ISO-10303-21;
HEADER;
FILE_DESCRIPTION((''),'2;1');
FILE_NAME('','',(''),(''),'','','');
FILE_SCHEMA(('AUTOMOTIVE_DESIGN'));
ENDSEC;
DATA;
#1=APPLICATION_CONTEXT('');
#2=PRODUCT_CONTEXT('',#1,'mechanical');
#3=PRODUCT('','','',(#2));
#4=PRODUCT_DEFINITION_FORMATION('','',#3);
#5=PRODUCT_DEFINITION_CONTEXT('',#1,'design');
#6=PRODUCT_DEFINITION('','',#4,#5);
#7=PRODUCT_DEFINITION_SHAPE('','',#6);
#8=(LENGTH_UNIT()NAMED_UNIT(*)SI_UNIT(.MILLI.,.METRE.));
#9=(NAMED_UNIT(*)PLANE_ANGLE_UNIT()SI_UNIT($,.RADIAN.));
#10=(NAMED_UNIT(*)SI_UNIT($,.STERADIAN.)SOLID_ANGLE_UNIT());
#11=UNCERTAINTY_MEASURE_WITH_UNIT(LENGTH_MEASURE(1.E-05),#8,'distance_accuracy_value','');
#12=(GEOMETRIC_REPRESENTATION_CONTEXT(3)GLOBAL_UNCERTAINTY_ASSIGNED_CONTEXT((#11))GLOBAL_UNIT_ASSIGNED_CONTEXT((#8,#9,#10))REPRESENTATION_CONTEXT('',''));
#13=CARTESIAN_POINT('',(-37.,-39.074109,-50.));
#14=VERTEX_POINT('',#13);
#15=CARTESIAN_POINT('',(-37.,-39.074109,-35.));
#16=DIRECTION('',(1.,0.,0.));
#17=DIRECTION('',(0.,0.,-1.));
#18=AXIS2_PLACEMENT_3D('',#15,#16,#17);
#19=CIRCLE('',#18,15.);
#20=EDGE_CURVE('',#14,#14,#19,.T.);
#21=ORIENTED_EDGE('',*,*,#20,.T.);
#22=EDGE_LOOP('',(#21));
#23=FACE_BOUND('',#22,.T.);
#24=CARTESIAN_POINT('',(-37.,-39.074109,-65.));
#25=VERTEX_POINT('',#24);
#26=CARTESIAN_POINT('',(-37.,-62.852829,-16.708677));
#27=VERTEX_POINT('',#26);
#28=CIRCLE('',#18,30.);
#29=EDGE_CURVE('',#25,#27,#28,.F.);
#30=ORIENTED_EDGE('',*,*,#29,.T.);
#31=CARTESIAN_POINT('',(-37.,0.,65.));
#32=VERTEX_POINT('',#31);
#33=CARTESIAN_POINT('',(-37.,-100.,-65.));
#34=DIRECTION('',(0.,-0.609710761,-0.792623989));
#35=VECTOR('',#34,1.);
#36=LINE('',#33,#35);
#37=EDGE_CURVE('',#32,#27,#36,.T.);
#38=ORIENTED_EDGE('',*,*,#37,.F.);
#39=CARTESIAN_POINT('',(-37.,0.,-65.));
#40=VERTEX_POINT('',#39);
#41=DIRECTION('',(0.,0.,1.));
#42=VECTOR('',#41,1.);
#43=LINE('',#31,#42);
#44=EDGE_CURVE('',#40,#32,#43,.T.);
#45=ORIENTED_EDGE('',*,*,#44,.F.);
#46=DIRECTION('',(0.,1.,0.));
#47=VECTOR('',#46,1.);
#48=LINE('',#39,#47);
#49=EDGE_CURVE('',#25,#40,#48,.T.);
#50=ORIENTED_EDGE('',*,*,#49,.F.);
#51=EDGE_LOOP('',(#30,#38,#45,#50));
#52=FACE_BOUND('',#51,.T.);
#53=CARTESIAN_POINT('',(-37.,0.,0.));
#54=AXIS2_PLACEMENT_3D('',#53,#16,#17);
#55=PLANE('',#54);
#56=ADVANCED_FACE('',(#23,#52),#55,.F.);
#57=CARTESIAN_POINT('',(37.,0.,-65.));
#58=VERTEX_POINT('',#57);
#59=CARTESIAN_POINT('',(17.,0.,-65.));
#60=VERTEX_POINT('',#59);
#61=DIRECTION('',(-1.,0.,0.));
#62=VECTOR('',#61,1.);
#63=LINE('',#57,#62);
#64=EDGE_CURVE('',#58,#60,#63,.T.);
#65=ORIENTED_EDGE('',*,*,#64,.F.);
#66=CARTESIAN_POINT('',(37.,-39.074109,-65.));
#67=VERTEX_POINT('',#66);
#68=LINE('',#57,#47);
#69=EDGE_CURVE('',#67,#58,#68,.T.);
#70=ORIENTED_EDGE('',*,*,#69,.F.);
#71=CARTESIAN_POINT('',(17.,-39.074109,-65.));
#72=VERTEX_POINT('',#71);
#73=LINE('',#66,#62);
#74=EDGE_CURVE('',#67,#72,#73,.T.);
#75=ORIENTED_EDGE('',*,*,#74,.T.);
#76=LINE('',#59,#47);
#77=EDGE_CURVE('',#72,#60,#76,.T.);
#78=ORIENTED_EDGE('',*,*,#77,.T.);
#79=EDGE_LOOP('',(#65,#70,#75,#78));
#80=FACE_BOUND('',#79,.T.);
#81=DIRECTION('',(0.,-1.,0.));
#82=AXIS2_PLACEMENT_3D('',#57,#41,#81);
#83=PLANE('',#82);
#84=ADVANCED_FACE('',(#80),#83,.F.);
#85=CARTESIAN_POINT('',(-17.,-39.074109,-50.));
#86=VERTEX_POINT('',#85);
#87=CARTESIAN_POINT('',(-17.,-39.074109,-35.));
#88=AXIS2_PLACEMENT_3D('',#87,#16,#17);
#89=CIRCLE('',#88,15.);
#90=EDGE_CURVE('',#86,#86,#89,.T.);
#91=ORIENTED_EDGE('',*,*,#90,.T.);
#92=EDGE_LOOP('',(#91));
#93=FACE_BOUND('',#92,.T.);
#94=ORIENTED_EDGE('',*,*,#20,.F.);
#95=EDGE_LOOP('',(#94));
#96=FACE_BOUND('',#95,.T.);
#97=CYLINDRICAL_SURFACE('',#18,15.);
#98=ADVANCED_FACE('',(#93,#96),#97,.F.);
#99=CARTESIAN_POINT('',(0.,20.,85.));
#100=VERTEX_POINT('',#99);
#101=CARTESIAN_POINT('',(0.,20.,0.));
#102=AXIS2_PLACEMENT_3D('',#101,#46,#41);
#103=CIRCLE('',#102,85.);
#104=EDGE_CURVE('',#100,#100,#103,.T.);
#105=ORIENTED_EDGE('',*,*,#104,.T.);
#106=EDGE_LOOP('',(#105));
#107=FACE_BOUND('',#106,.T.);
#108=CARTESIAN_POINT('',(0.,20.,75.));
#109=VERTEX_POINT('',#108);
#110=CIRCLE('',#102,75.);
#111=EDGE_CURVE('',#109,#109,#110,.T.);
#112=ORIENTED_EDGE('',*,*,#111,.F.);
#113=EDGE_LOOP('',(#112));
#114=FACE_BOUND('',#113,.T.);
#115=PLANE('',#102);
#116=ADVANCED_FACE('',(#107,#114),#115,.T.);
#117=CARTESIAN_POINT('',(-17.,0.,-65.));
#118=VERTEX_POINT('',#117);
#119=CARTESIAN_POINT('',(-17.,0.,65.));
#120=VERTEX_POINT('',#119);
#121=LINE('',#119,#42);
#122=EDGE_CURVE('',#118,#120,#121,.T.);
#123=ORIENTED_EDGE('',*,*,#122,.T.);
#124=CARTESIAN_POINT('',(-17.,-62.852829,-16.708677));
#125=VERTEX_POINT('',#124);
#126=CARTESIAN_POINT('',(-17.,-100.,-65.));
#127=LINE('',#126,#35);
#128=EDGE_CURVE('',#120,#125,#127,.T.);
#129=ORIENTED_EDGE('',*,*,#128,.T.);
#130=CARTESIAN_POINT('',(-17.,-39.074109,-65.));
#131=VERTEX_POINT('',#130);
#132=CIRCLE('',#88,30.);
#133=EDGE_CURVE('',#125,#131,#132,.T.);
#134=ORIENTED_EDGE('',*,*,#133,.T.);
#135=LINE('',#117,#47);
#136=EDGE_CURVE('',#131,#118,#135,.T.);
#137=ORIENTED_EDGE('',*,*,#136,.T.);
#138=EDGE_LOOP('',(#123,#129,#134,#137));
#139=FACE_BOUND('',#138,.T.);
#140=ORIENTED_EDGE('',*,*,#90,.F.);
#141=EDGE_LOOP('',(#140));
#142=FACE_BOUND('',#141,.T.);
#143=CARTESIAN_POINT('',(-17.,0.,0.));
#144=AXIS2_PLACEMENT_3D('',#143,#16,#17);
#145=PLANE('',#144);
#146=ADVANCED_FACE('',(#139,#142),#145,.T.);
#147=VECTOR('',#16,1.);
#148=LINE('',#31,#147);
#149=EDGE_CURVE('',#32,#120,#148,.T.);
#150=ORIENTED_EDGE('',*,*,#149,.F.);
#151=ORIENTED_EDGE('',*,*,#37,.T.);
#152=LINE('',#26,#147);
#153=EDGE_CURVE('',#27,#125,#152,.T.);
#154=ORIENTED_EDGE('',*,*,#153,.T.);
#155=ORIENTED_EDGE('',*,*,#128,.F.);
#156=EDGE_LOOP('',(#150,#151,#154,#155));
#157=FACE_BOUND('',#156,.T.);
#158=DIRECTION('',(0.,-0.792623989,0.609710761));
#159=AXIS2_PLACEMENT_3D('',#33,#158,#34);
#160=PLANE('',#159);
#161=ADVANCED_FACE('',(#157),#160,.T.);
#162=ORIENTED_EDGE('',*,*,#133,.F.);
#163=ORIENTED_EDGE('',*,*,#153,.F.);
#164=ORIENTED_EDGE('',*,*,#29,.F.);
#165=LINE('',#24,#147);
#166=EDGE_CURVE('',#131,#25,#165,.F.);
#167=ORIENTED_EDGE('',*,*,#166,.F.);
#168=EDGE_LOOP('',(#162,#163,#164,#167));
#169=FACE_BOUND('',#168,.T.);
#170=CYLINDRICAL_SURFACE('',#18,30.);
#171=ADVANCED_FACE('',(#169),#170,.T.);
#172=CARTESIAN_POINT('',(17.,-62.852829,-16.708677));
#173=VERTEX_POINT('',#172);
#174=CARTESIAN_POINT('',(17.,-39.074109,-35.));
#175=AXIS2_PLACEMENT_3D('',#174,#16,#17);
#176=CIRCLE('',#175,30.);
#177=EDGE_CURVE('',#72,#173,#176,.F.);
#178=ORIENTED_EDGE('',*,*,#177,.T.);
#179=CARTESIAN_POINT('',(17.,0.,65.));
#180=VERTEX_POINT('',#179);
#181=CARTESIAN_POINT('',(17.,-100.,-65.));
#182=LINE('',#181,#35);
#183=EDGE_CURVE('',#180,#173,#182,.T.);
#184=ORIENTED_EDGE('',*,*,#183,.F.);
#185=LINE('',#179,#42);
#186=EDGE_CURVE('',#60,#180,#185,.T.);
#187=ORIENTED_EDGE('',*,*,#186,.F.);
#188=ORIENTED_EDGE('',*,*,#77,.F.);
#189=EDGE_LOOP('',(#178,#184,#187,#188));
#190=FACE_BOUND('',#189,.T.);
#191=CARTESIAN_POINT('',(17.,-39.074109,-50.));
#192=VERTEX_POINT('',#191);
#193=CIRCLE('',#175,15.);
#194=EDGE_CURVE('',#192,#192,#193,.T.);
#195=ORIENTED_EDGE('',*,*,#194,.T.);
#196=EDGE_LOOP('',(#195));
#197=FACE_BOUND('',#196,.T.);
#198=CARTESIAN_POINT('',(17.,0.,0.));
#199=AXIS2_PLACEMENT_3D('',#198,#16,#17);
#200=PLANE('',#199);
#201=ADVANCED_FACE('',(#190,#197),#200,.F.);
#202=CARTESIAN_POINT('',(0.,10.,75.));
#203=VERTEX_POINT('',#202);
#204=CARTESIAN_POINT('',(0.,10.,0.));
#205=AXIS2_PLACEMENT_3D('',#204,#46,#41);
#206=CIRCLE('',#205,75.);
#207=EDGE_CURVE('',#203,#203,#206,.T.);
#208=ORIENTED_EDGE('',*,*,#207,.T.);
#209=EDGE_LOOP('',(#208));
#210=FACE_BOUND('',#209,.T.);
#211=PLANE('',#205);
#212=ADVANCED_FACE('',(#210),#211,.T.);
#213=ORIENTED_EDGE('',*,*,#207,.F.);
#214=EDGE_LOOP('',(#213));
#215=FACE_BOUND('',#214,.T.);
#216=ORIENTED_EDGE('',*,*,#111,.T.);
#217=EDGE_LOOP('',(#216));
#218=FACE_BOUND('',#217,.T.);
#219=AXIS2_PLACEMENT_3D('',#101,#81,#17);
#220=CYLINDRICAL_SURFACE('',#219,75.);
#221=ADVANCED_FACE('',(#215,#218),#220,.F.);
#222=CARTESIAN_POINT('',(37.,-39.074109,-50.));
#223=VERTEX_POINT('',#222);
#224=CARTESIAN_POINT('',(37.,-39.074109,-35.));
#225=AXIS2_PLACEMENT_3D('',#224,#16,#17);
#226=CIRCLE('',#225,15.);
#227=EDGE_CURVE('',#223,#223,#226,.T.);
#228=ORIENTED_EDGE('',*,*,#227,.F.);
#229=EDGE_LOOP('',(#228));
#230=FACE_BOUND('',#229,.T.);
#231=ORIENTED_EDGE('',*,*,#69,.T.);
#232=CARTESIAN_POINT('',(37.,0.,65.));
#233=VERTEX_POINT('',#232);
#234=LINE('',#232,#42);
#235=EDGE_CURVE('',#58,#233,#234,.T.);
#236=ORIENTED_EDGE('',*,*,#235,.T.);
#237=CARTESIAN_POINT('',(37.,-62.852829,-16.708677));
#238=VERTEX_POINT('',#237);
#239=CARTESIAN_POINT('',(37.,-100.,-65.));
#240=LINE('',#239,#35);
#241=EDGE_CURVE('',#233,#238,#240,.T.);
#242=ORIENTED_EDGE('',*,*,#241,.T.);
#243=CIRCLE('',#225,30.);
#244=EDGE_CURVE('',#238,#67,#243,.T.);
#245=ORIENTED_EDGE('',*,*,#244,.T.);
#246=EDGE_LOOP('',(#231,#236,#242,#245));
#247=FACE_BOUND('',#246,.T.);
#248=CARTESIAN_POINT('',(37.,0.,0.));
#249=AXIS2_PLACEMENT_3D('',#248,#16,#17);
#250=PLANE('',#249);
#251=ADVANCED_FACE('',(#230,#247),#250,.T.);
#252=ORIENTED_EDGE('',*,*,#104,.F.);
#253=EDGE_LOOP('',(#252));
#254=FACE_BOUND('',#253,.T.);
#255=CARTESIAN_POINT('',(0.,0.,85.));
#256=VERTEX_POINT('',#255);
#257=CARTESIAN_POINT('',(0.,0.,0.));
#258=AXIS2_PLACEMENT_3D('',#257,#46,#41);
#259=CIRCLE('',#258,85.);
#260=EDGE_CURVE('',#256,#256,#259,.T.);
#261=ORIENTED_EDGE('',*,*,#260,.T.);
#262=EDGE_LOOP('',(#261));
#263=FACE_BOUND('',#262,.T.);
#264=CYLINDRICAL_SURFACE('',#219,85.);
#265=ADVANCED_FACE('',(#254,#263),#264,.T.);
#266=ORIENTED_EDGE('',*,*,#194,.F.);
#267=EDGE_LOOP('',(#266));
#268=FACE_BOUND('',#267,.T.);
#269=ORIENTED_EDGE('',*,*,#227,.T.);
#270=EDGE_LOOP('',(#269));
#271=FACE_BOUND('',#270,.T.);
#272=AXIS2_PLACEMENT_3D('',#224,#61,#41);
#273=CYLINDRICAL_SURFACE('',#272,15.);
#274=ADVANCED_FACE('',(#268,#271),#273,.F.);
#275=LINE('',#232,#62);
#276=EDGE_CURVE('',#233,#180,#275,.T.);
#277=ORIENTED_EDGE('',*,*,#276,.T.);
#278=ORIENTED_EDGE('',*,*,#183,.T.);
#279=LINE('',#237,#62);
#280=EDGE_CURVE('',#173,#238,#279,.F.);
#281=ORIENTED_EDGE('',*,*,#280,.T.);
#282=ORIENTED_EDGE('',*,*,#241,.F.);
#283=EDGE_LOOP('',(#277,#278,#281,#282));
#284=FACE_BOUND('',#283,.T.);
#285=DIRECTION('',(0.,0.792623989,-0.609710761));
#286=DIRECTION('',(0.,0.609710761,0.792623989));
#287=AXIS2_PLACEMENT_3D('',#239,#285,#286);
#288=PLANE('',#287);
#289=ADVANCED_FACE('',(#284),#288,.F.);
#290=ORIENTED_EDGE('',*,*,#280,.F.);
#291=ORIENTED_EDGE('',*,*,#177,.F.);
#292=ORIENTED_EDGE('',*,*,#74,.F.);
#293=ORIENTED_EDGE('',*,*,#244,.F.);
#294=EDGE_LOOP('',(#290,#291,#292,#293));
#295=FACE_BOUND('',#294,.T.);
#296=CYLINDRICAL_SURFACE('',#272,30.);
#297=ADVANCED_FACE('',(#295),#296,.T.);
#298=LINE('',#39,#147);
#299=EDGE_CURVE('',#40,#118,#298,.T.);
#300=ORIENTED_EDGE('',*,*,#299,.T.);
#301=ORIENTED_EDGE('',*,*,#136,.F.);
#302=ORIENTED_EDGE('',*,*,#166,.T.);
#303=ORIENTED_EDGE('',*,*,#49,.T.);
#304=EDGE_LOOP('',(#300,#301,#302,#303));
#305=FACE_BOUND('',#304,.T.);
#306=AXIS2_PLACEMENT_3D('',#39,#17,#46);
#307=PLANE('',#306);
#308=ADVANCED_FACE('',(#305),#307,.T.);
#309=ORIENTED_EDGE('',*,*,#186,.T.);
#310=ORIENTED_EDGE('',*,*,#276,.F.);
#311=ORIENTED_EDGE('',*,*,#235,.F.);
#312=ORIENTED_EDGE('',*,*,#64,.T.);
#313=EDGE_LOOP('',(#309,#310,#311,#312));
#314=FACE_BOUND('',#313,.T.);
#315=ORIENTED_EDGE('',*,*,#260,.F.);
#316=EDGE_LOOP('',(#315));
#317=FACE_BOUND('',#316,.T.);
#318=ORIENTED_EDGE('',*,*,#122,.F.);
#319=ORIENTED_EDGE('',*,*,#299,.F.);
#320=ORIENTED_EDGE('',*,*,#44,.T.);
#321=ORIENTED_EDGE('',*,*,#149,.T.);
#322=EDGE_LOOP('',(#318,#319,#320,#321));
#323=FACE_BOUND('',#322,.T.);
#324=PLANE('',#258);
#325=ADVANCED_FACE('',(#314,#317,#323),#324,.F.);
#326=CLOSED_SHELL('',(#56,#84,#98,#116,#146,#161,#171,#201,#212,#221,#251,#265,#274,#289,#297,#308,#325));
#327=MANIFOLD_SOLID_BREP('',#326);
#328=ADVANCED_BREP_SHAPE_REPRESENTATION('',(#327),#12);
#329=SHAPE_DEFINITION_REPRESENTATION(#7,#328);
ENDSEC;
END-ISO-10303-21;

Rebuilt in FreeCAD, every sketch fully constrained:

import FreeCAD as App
import Part
import Sketcher
from FreeCAD import Vector


def edges_at(feature, points):
    """Names of the edges that pass closest to the given points."""
    edges = feature.Shape.Edges
    near = lambda p: min(range(len(edges)), key=lambda i: edges[i].distToShape(Part.Vertex(*p))[0])
    return sorted({f"Edge{near(p) + 1}" for p in points})


def faces_at(feature, points):
    """Names of the faces that lie closest to the given points."""
    faces = feature.Shape.Faces
    near = lambda p: min(range(len(faces)), key=lambda i: faces[i].distToShape(Part.Vertex(*p))[0])
    return sorted({f"Face{near(p) + 1}" for p in points})


def add_polygon(sketch, points):
    """Adds a closed chain of lines whose ends are joined by coincident constraints."""
    first, n = sketch.GeometryCount, len(points)
    for a, b in zip(points, points[1:] + points[:1]):
        sketch.addGeometry(Part.LineSegment(App.Vector(*a, 0), App.Vector(*b, 0)), False)
    for i in range(n):
        sketch.addConstraint(Sketcher.Constraint("Coincident", first + i, 2, first + (i + 1) % n, 1))

doc = App.newDocument("Part")
body = doc.addObject("PartDesign::Body", "Body")

sketch1 = body.newObject("Sketcher::SketchObject", "Sketch")
sketch1.AttachmentSupport = (doc.getObject("XZ_Plane"), [""])
sketch1.MapMode = "FlatFace"
sketch1.addGeometry(Part.Circle(Vector(0, 0, 0), Vector(0, 0, 1), 85), False)
sketch1.addConstraint([
    Sketcher.Constraint("Coincident", 0, 3, -1, 1),
    Sketcher.Constraint("Diameter", 0, 170.0),
])
pad1 = body.newObject("PartDesign::Pad", "Pad")
pad1.Profile = sketch1
pad1.Length = 20
pad1.Reversed = True
doc.recompute()

thickness = body.newObject("PartDesign::Thickness", "Thickness")
thickness.Base = (pad1, faces_at(pad1, [(0, 20, 0)]))
thickness.Value = 10
thickness.Reversed = True
thickness.Join = "Intersection"

sketch2 = body.newObject("Sketcher::SketchObject", "Sketch001")
sketch2.AttachmentSupport = (doc.getObject("YZ_Plane"), [""])
sketch2.MapMode = "FlatFace"
sketch2.AttachmentOffset = App.Placement(Vector(0, 0, 17), App.Rotation())
add_polygon(sketch2, [(0, 65), (-100, -65), (0, -65)])
sketch2.addGeometry(Part.Circle(Vector(-39.074109, -35, 0), Vector(0, 0, 1), 15), False)
sketch2.addConstraint([
    Sketcher.Constraint("Horizontal", 1),
    Sketcher.Constraint("Vertical", 2),
    Sketcher.Constraint("Symmetric", 1, 2, 2, 2, -1, 1),
    Sketcher.Constraint("Diameter", 3, 30.0),
    Sketcher.Constraint("DistanceX", 1, 1, 1, 2, 100.0),
    Sketcher.Constraint("DistanceY", 2, 1, 2, 2, 130.0),
    Sketcher.Constraint("DistanceY", 3, 3, -1, 1, 35.0),
    Sketcher.Constraint("DistanceX", 3, 3, -1, 1, 39.074109),
])
pad2 = body.newObject("PartDesign::Pad", "Pad001")
pad2.Profile = sketch2
pad2.Length = 20

sketch3 = body.newObject("Sketcher::SketchObject", "Sketch002")
sketch3.AttachmentSupport = (doc.getObject("YZ_Plane"), [""])
sketch3.MapMode = "FlatFace"
sketch3.AttachmentOffset = App.Placement(Vector(0, 0, -37), App.Rotation())
add_polygon(sketch3, [(0, 65), (-100, -65), (0, -65)])
sketch3.addGeometry(Part.Circle(Vector(-39.074109, -35, 0), Vector(0, 0, 1), 15), False)
sketch3.addConstraint([
    Sketcher.Constraint("Horizontal", 1),
    Sketcher.Constraint("Vertical", 2),
    Sketcher.Constraint("Symmetric", 1, 2, 2, 2, -1, 1),
    Sketcher.Constraint("Diameter", 3, 30.0),
    Sketcher.Constraint("DistanceX", 1, 1, 1, 2, 100.0),
    Sketcher.Constraint("DistanceY", 2, 1, 2, 2, 130.0),
    Sketcher.Constraint("DistanceY", 3, 3, -1, 1, 35.0),
    Sketcher.Constraint("DistanceX", 3, 3, -1, 1, 39.074109),
])
pad3 = body.newObject("PartDesign::Pad", "Pad002")
pad3.Profile = sketch3
pad3.Length = 20
doc.recompute()

fillet = body.newObject("PartDesign::Fillet", "Fillet")
fillet.Base = (pad3, edges_at(pad3, [(27, -100, -65), (-27, -100, -65)]))
fillet.Radius = 30

doc.recompute()
